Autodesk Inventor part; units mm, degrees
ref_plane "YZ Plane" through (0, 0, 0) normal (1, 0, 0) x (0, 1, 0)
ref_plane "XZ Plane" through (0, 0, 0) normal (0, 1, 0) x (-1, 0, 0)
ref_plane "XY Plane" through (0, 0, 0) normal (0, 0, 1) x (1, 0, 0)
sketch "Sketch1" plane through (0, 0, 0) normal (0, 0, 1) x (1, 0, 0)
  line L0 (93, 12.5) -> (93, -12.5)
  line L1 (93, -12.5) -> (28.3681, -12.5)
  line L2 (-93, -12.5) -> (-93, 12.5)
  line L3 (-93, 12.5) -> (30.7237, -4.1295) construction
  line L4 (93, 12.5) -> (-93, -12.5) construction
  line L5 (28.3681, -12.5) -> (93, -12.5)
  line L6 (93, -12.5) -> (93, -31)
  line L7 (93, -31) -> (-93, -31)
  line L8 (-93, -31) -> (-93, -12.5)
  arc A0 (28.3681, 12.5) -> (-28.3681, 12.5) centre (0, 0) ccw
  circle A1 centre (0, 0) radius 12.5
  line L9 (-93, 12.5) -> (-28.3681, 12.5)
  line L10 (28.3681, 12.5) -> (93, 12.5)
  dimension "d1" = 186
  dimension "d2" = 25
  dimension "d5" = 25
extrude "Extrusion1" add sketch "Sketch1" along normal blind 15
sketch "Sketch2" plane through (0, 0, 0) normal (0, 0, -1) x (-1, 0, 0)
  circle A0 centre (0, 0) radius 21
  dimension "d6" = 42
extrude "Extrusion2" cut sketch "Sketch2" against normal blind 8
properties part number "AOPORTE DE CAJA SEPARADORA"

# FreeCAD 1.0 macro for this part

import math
import FreeCAD as App
import Part
import Sketcher

doc = App.newDocument("Part")
body = doc.addObject("PartDesign::Body", "Body")

# Sketch on XY plane
sketch1 = body.newObject("Sketcher::SketchObject", "Sketch")
sketch1.AttachmentSupport = (doc.getObject("XY_Plane"), [""])
sketch1.MapMode = "FlatFace"
sketch1.addGeometry([
    Part.LineSegment(App.Vector(93, -31, 0), App.Vector(93, 12.5, 0)),  # 0
    Part.LineSegment(App.Vector(93, 12.5, 0), App.Vector(28.3681, 12.5, 0)),  # 1
    Part.ArcOfCircle(Part.Circle(App.Vector(0, 0, 0), App.Vector(0, 0, 1), 30.999985), math.radians(23.780007), math.radians(156.219993)),  # 2
    Part.LineSegment(App.Vector(-28.3681, 12.5, 0), App.Vector(-93, 12.5, 0)),  # 3
    Part.LineSegment(App.Vector(-93, 12.5, 0), App.Vector(-93, -31, 0)),  # 4
    Part.LineSegment(App.Vector(-93, -31, 0), App.Vector(93, -31, 0)),  # 5
    Part.Circle(App.Vector(0, 0, 0), App.Vector(0, 0, 1), 12.5),  # 6
], False)
sketch1.addConstraint([
    Sketcher.Constraint("Coincident", 0, 2, 1, 1),
    Sketcher.Constraint("Coincident", 1, 2, 2, 1),
    Sketcher.Constraint("Coincident", 2, 2, 3, 1),
    Sketcher.Constraint("Coincident", 3, 2, 4, 1),
    Sketcher.Constraint("Coincident", 4, 2, 5, 1),
    Sketcher.Constraint("Coincident", 5, 2, 0, 1),
    Sketcher.Constraint("Vertical", 0),
    Sketcher.Constraint("Horizontal", 1),
    Sketcher.Constraint("Horizontal", 3),
    Sketcher.Constraint("Vertical", 4),
    Sketcher.Constraint("Horizontal", 5),
    Sketcher.Constraint("Coincident", 2, 3, -1, 1),
    Sketcher.Constraint("Coincident", 6, 3, -1, 1),
    Sketcher.Constraint("Symmetric", 0, 2, 3, 2, -2),
    Sketcher.Constraint("Diameter", 6, 25.0),
    Sketcher.Constraint("DistanceX", 5, 1, 5, 2, 186.0),
    Sketcher.Constraint("Radius", 2, 31.0),
    Sketcher.Constraint("DistanceY", 0, 1, 0, 2, 43.5),
    Sketcher.Constraint("DistanceY", 4, 2, -1, 1, 31.0),
])
pad1 = body.newObject("PartDesign::Pad", "Pad")
pad1.Profile = sketch1
pad1.Length = 15

# Sketch on XY plane
sketch2 = body.newObject("Sketcher::SketchObject", "Sketch001")
sketch2.AttachmentSupport = (doc.getObject("XY_Plane"), [""])
sketch2.MapMode = "FlatFace"
sketch2.addGeometry(Part.Circle(App.Vector(0, 0, 0), App.Vector(0, 0, 1), 21), False)
sketch2.addConstraint([
    Sketcher.Constraint("Coincident", 0, 3, -1, 1),
    Sketcher.Constraint("Diameter", 0, 42.0),
])
pocket1 = body.newObject("PartDesign::Pocket", "Pocket")
pocket1.Profile = sketch2
pocket1.Length = 8
pocket1.Reversed = True

doc.recompute()
